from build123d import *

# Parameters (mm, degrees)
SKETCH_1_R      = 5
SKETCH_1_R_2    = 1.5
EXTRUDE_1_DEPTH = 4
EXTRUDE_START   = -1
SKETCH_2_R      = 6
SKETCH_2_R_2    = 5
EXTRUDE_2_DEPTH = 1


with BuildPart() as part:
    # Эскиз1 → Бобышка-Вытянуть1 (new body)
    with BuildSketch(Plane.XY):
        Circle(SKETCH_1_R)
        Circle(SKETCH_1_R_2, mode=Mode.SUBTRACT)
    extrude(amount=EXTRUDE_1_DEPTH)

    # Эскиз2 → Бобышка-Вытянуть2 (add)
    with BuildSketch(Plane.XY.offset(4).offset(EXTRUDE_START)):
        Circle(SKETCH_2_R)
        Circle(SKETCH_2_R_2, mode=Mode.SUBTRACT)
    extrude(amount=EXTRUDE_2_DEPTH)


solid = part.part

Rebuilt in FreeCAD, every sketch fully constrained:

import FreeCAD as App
import Part
import Sketcher
from FreeCAD import Vector

doc = App.newDocument("Part")
body = doc.addObject("PartDesign::Body", "Body")

sketch1 = body.newObject("Sketcher::SketchObject", "Sketch")
sketch1.AttachmentSupport = (doc.getObject("XY_Plane"), [""])
sketch1.MapMode = "FlatFace"
sketch1.addGeometry([
    Part.Circle(Vector(0, 0, 0), Vector(0, 0, 1), 5),
    Part.Circle(Vector(0, 0, 0), Vector(0, 0, 1), 1.5),
], False)
sketch1.addConstraint([
    Sketcher.Constraint("Coincident", 0, 3, -1, 1),
    Sketcher.Constraint("Coincident", 1, 3, -1, 1),
    Sketcher.Constraint("Diameter", 0, 10.0),
    Sketcher.Constraint("Diameter", 1, 3.0),
])
pad1 = body.newObject("PartDesign::Pad", "Pad")
pad1.Profile = sketch1
pad1.Length = 4

sketch2 = body.newObject("Sketcher::SketchObject", "Sketch001")
sketch2.AttachmentSupport = (doc.getObject("XY_Plane"), [""])
sketch2.MapMode = "FlatFace"
sketch2.AttachmentOffset = App.Placement(Vector(0, 0, 3), App.Rotation())
sketch2.addGeometry([
    Part.Circle(Vector(0, 0, 0), Vector(0, 0, 1), 6),
    Part.Circle(Vector(0, 0, 0), Vector(0, 0, 1), 5),
], False)
sketch2.addConstraint([
    Sketcher.Constraint("Coincident", 0, 3, -1, 1),
    Sketcher.Constraint("Coincident", 1, 3, -1, 1),
    Sketcher.Constraint("Diameter", 0, 12.0),
    Sketcher.Constraint("Diameter", 1, 10.0),
])
pad2 = body.newObject("PartDesign::Pad", "Pad001")
pad2.Profile = sketch2
pad2.Length = 1

doc.recompute()
